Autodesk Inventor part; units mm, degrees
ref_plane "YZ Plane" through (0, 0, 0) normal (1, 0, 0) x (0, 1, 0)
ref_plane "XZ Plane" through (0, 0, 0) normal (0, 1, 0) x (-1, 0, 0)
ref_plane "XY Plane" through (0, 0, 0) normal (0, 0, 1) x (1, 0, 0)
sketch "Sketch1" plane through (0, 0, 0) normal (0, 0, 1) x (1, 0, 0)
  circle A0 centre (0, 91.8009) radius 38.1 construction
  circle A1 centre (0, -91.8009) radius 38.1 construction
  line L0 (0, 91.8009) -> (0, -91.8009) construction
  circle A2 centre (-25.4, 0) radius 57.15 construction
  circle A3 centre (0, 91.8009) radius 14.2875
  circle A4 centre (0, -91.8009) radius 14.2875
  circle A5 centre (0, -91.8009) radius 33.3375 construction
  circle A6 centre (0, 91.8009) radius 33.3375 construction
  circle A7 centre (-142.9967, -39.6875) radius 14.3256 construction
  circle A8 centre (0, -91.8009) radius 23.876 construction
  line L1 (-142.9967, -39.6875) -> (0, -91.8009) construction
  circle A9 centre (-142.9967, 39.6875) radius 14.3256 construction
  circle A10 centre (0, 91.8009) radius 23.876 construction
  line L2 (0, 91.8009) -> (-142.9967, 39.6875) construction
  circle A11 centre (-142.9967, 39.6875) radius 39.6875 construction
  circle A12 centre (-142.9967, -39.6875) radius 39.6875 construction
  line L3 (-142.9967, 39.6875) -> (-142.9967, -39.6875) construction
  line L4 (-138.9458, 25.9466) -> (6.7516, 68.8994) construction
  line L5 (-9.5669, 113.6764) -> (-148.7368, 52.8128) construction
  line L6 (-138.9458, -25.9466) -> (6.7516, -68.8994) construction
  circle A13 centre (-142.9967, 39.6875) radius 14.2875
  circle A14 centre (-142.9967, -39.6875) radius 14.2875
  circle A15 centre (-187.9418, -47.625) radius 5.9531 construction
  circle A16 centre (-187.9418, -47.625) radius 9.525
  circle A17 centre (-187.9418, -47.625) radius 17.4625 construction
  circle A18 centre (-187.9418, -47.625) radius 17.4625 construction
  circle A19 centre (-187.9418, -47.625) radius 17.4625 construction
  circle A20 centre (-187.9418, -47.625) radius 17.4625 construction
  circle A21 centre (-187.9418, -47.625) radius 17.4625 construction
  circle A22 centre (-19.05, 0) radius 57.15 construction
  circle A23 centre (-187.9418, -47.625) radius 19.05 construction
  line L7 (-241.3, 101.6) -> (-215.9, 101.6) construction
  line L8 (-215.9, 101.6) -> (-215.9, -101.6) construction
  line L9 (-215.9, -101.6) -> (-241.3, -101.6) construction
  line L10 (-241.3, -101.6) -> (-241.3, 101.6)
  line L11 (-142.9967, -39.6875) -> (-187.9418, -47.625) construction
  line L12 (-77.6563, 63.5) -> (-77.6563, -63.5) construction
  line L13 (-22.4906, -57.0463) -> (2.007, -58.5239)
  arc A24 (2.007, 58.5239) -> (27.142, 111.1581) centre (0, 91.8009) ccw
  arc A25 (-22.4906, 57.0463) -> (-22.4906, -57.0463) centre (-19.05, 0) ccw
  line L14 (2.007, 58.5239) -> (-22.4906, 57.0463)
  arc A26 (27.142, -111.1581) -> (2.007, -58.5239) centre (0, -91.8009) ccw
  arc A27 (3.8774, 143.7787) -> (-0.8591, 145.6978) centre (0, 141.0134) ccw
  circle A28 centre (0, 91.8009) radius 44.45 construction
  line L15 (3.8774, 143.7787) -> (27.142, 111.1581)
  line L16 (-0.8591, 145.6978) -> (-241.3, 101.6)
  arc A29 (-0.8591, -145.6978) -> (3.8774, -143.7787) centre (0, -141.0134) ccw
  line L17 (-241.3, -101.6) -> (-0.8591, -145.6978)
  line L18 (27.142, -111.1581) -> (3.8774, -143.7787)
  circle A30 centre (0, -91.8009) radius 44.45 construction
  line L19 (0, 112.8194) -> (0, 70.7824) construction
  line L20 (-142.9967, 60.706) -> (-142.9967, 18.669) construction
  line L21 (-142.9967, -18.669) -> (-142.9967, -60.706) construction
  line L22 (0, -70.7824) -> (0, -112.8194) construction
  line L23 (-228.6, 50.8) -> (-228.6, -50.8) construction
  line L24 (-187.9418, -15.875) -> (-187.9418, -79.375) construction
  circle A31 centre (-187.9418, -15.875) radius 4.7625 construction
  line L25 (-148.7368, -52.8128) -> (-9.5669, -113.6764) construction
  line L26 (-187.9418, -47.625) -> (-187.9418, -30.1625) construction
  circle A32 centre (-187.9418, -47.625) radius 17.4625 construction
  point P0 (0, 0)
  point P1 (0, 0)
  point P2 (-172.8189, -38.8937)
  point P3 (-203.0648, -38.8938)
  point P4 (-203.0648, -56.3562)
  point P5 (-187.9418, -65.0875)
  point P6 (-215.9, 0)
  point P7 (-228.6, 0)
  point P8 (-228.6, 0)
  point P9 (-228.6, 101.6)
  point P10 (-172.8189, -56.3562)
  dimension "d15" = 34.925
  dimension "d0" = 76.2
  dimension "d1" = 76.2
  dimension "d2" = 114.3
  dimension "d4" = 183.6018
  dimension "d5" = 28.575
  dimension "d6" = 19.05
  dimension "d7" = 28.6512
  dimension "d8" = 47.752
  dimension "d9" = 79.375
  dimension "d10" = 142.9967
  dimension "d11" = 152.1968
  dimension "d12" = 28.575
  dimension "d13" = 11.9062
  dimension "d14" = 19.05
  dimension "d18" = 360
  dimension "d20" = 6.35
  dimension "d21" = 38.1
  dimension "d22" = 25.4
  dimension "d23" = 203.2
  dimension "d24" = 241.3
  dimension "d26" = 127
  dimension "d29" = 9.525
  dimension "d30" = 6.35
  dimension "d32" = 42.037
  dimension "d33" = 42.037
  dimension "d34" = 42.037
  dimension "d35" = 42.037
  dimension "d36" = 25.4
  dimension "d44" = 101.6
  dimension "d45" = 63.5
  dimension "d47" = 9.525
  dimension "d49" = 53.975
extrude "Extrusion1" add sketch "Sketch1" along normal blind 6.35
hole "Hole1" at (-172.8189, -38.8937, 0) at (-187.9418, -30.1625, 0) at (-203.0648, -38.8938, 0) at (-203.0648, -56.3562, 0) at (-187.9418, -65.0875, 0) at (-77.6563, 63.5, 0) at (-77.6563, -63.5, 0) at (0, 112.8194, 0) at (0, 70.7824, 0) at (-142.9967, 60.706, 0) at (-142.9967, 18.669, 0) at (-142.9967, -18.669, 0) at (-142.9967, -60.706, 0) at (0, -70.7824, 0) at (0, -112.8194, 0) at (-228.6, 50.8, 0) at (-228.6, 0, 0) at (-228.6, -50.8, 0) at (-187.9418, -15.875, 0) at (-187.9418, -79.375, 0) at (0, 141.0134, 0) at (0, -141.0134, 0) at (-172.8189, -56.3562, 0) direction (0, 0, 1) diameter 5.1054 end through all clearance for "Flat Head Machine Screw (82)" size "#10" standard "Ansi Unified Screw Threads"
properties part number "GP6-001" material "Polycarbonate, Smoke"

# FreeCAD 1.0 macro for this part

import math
import FreeCAD as App
import Part
import Sketcher
from FreeCAD import Vector
Q = App.Units.Quantity

doc = App.newDocument("Part")
params = doc.addObject("Spreadsheet::Sheet", "Params")
for row, (alias, value) in enumerate([
    ("sketch1_diameter", "0.75 in"),
    ("sketch1_height", "8 in"),
    ("sketch1_radius", "2.25 in"),
    ("sketch1_diameter2", "1.125 in"),
    ("sketch1_radius2", "0.1875 in"),
    ("pad1_length", "0.25 in"),
    ("sketch2_diameter", "0.201 in"),
    ("hole_diameter", "0.201 in"),
], start=1):
    params.set(f"A{row}", alias)
    params.set(f"B{row}", "=" + value)
    params.setAlias(f"B{row}", alias)

body = doc.addObject("PartDesign::Body", "Body")

sketch1 = doc.addObject("Sketcher::SketchObject", "Sketch")
body.addObject(sketch1)
sketch1.AttachmentSupport = (doc.XY_Plane, [""])
sketch1.MapMode = "FlatFace"
sketch1.addGeometry(Part.LineSegment(Vector(-241.3, 101.6, 0), Vector(-241.3, -101.6, 0)), False)
sketch1.addGeometry(Part.LineSegment(Vector(-241.3, -101.6, 0), Vector(-0.9, -145.7, 0)), False)
sketch1.addGeometry(Part.ArcOfCircle(Part.Circle(Vector(0, -141, 0), Vector(0, 0, 1), 4.8), math.radians(-100), math.radians(-35)), False)
sketch1.addGeometry(Part.LineSegment(Vector(3.9, -143.8, 0), Vector(27.1, -111.2, 0)), False)
sketch1.addGeometry(Part.ArcOfCircle(Part.Circle(Vector(0, -91.8, 0), Vector(0, 0, 1), 33.3), math.radians(-35), math.radians(87)), False)
sketch1.addGeometry(Part.LineSegment(Vector(2, -58.5, 0), Vector(-22.5, -57, 0)), False)
sketch1.addGeometry(Part.ArcOfCircle(Part.Circle(Vector(-19.1, 0, 0), Vector(0, 0, 1), 57.1), math.radians(93), math.radians(267)), False)
sketch1.addGeometry(Part.LineSegment(Vector(-22.5, 57, 0), Vector(2, 58.5, 0)), False)
sketch1.addGeometry(Part.ArcOfCircle(Part.Circle(Vector(0, 91.8, 0), Vector(0, 0, 1), 33.3), math.radians(-87), math.radians(35)), False)
sketch1.addGeometry(Part.LineSegment(Vector(27.1, 111.2, 0), Vector(3.9, 143.8, 0)), False)
sketch1.addGeometry(Part.ArcOfCircle(Part.Circle(Vector(0, 141, 0), Vector(0, 0, 1), 4.8), math.radians(35), math.radians(100)), False)
sketch1.addGeometry(Part.LineSegment(Vector(-0.9, 145.7, 0), Vector(-241.3, 101.6, 0)), False)
sketch1.addGeometry(Part.Circle(Vector(-187.9, -47.6, 0), Vector(0, 0, 1), 9.5), False)
sketch1.addGeometry(Part.Circle(Vector(-143, -39.7, 0), Vector(0, 0, 1), 14.3), False)
sketch1.addGeometry(Part.Circle(Vector(0, -91.8, 0), Vector(0, 0, 1), 14.3), False)
sketch1.addGeometry(Part.Circle(Vector(-143, 39.7, 0), Vector(0, 0, 1), 14.3), False)
sketch1.addGeometry(Part.Circle(Vector(0, 91.8, 0), Vector(0, 0, 1), 14.3), False)
sketch1.addConstraint(Sketcher.Constraint("Coincident", 0, 2, 1, 1))
sketch1.addConstraint(Sketcher.Constraint("Tangent", 1, 2, 2, 1))
sketch1.addConstraint(Sketcher.Constraint("Tangent", 2, 2, 3, 1))
sketch1.addConstraint(Sketcher.Constraint("Tangent", 3, 2, 4, 1))
sketch1.addConstraint(Sketcher.Constraint("Tangent", 4, 2, 5, 1))
sketch1.addConstraint(Sketcher.Constraint("Tangent", 5, 2, 6, 2))
sketch1.addConstraint(Sketcher.Constraint("Tangent", 6, 1, 7, 1))
sketch1.addConstraint(Sketcher.Constraint("Tangent", 7, 2, 8, 1))
sketch1.addConstraint(Sketcher.Constraint("Tangent", 8, 2, 9, 1))
sketch1.addConstraint(Sketcher.Constraint("Tangent", 9, 2, 10, 1))
sketch1.addConstraint(Sketcher.Constraint("Tangent", 10, 2, 11, 1))
sketch1.addConstraint(Sketcher.Constraint("Coincident", 11, 2, 0, 1))
sketch1.addConstraint(Sketcher.Constraint("Vertical", 0))
sketch1.addConstraint(Sketcher.Constraint("Coincident", 14, 3, 4, 3))
sketch1.addConstraint(Sketcher.Constraint("Coincident", 16, 3, 8, 3))
sketch1.addConstraint(Sketcher.Constraint("Equal", 4, 8))
sketch1.addConstraint(Sketcher.Constraint("Equal", 2, 10))
sketch1.addConstraint(Sketcher.Constraint("Equal", 13, 14))
sketch1.addConstraint(Sketcher.Constraint("Equal", 14, 15))
sketch1.addConstraint(Sketcher.Constraint("Equal", 15, 16))
sketch1.addConstraint(Sketcher.Constraint("Symmetric", 4, 3, 8, 3, -1, 1))
sketch1.addConstraint(Sketcher.Constraint("Symmetric", 2, 3, 10, 3, -1, 1))
sketch1.addConstraint(Sketcher.Constraint("Symmetric", 13, 3, 15, 3, -1))
sketch1.addConstraint(Sketcher.Constraint("Symmetric", 5, 2, 6, 1, -1))
sketch1.addConstraint(Sketcher.Constraint("PointOnObject", 2, 3, -2))
sketch1.addConstraint(Sketcher.Constraint("Vertical", 1, 2, 10, 2))
sketch1.addConstraint(Sketcher.Constraint("Diameter", 12, Q("0.75 in")))
sketch1.addConstraint(Sketcher.Constraint("DistanceY", 0, 2, 0, 1, Q("8 in")))
sketch1.addConstraint(Sketcher.Constraint("Radius", 6, Q("2.25 in")))
sketch1.addConstraint(Sketcher.Constraint("Diameter", 13, Q("1.125 in")))
sketch1.addConstraint(Sketcher.Constraint("Radius", 2, Q("0.1875 in")))
sketch1.addConstraint(Sketcher.Constraint("DistanceX", 0, 2, -1, 1, Q("9.5 in")))
sketch1.addConstraint(Sketcher.Constraint("DistanceX", 6, 3, -1, 1, Q("0.75 in")))
sketch1.addConstraint(Sketcher.Constraint("Radius", 4, Q("1.3125 in")))
sketch1.addConstraint(Sketcher.Constraint("DistanceY", 13, 3, 15, 3, Q("3.125 in")))
sketch1.addConstraint(Sketcher.Constraint("DistanceY", 0, 2, 12, 3, Q("2.125 in")))
sketch1.addConstraint(Sketcher.Constraint("DistanceX", 13, 3, -1, 1, Q("5.6298 in")))
sketch1.addConstraint(Sketcher.Constraint("DistanceY", 4, 3, 8, 3, Q("183.6018 mm")))
sketch1.addConstraint(Sketcher.Constraint("DistanceY", 2, 3, 4, 3, Q("1.9375 in")))
sketch1.addConstraint(Sketcher.Constraint("DistanceX", 12, 3, 13, 3, Q("1.7695 in")))
sketch1.setExpression("Constraints[26]", "Params.sketch1_diameter")
sketch1.setExpression("Constraints[27]", "Params.sketch1_height")
sketch1.setExpression("Constraints[28]", "Params.sketch1_radius")
sketch1.setExpression("Constraints[29]", "Params.sketch1_diameter2")
sketch1.setExpression("Constraints[30]", "Params.sketch1_radius2")
pad1 = doc.addObject("PartDesign::Pad", "Pad")
body.addObject(pad1)
pad1.Profile = sketch1
pad1.setExpression("Length", "Params.pad1_length")

sketch2 = doc.addObject("Sketcher::SketchObject", "Sketch001")
body.addObject(sketch2)
sketch2.AttachmentSupport = (doc.XY_Plane, [""])
sketch2.MapMode = "FlatFace"
sketch2.addGeometry(Part.Circle(Vector(-172.8, -38.9, 0), Vector(0, 0, 1), 2.6), False)
sketch2.addGeometry(Part.Circle(Vector(-187.9, -30.2, 0), Vector(0, 0, 1), 2.6), False)
sketch2.addGeometry(Part.Circle(Vector(-203.1, -38.9, 0), Vector(0, 0, 1), 2.6), False)
sketch2.addGeometry(Part.Circle(Vector(-203.1, -56.4, 0), Vector(0, 0, 1), 2.6), False)
sketch2.addGeometry(Part.Circle(Vector(-187.9, -65.1, 0), Vector(0, 0, 1), 2.6), False)
sketch2.addGeometry(Part.Circle(Vector(-77.7, 63.5, 0), Vector(0, 0, 1), 2.6), False)
sketch2.addGeometry(Part.Circle(Vector(-77.7, -63.5, 0), Vector(0, 0, 1), 2.6), False)
sketch2.addGeometry(Part.Circle(Vector(0, 112.8, 0), Vector(0, 0, 1), 2.6), False)
sketch2.addGeometry(Part.Circle(Vector(0, 70.8, 0), Vector(0, 0, 1), 2.6), False)
sketch2.addGeometry(Part.Circle(Vector(-143, 60.7, 0), Vector(0, 0, 1), 2.6), False)
sketch2.addGeometry(Part.Circle(Vector(-143, 18.7, 0), Vector(0, 0, 1), 2.6), False)
sketch2.addGeometry(Part.Circle(Vector(-143, -18.7, 0), Vector(0, 0, 1), 2.6), False)
sketch2.addGeometry(Part.Circle(Vector(-143, -60.7, 0), Vector(0, 0, 1), 2.6), False)
sketch2.addGeometry(Part.Circle(Vector(0, -70.8, 0), Vector(0, 0, 1), 2.6), False)
sketch2.addGeometry(Part.Circle(Vector(0, -112.8, 0), Vector(0, 0, 1), 2.6), False)
sketch2.addGeometry(Part.Circle(Vector(-228.6, 50.8, 0), Vector(0, 0, 1), 2.6), False)
sketch2.addGeometry(Part.Circle(Vector(-228.6, 0, 0), Vector(0, 0, 1), 2.6), False)
sketch2.addGeometry(Part.Circle(Vector(-228.6, -50.8, 0), Vector(0, 0, 1), 2.6), False)
sketch2.addGeometry(Part.Circle(Vector(-187.9, -15.9, 0), Vector(0, 0, 1), 2.6), False)
sketch2.addGeometry(Part.Circle(Vector(-187.9, -79.4, 0), Vector(0, 0, 1), 2.6), False)
sketch2.addGeometry(Part.Circle(Vector(0, 141, 0), Vector(0, 0, 1), 2.6), False)
sketch2.addGeometry(Part.Circle(Vector(0, -141, 0), Vector(0, 0, 1), 2.6), False)
sketch2.addGeometry(Part.Circle(Vector(-172.8, -56.4, 0), Vector(0, 0, 1), 2.6), False)
sketch2.addConstraint(Sketcher.Constraint("Equal", 0, 1))
sketch2.addConstraint(Sketcher.Constraint("Equal", 1, 2))
sketch2.addConstraint(Sketcher.Constraint("Equal", 2, 3))
sketch2.addConstraint(Sketcher.Constraint("Equal", 3, 4))
sketch2.addConstraint(Sketcher.Constraint("Equal", 4, 5))
sketch2.addConstraint(Sketcher.Constraint("Equal", 5, 6))
sketch2.addConstraint(Sketcher.Constraint("Equal", 6, 7))
sketch2.addConstraint(Sketcher.Constraint("Equal", 7, 8))
sketch2.addConstraint(Sketcher.Constraint("Equal", 8, 9))
sketch2.addConstraint(Sketcher.Constraint("Equal", 9, 10))
sketch2.addConstraint(Sketcher.Constraint("Equal", 10, 11))
sketch2.addConstraint(Sketcher.Constraint("Equal", 11, 12))
sketch2.addConstraint(Sketcher.Constraint("Equal", 12, 13))
sketch2.addConstraint(Sketcher.Constraint("Equal", 13, 14))
sketch2.addConstraint(Sketcher.Constraint("Equal", 14, 15))
sketch2.addConstraint(Sketcher.Constraint("Equal", 15, 16))
sketch2.addConstraint(Sketcher.Constraint("Equal", 16, 17))
sketch2.addConstraint(Sketcher.Constraint("Equal", 17, 18))
sketch2.addConstraint(Sketcher.Constraint("Equal", 18, 19))
sketch2.addConstraint(Sketcher.Constraint("Equal", 19, 20))
sketch2.addConstraint(Sketcher.Constraint("Equal", 20, 21))
sketch2.addConstraint(Sketcher.Constraint("Equal", 21, 22))
sketch2.addConstraint(Sketcher.Constraint("Symmetric", 8, 3, 13, 3, -1, 1))
sketch2.addConstraint(Sketcher.Constraint("Symmetric", 7, 3, 14, 3, -1, 1))
sketch2.addConstraint(Sketcher.Constraint("Symmetric", 20, 3, 21, 3, -1, 1))
sketch2.addConstraint(Sketcher.Constraint("Symmetric", 5, 3, 6, 3, -1))
sketch2.addConstraint(Sketcher.Constraint("Symmetric", 10, 3, 11, 3, -1))
sketch2.addConstraint(Sketcher.Constraint("Symmetric", 9, 3, 12, 3, -1))
sketch2.addConstraint(Sketcher.Constraint("Symmetric", 15, 3, 17, 3, -1))
sketch2.addConstraint(Sketcher.Constraint("PointOnObject", 7, 3, -2))
sketch2.addConstraint(Sketcher.Constraint("PointOnObject", 8, 3, -2))
sketch2.addConstraint(Sketcher.Constraint("PointOnObject", 16, 3, -1))
sketch2.addConstraint(Sketcher.Constraint("PointOnObject", 20, 3, -2))
sketch2.addConstraint(Sketcher.Constraint("Horizontal", 0, 3, 2, 3))
sketch2.addConstraint(Sketcher.Constraint("Horizontal", 3, 3, 22, 3))
sketch2.addConstraint(Sketcher.Constraint("Vertical", 2, 3, 3, 3))
sketch2.addConstraint(Sketcher.Constraint("Vertical", 1, 3, 4, 3))
sketch2.addConstraint(Sketcher.Constraint("Vertical", 9, 3, 10, 3))
sketch2.addConstraint(Sketcher.Constraint("Vertical", 15, 3, 16, 3))
sketch2.addConstraint(Sketcher.Constraint("Vertical", 4, 3, 18, 3))
sketch2.addConstraint(Sketcher.Constraint("Vertical", 18, 3, 19, 3))
sketch2.addConstraint(Sketcher.Constraint("Vertical", 0, 3, 22, 3))
sketch2.addConstraint(Sketcher.Constraint("Diameter", 0, Q("0.201 in")))
sketch2.addConstraint(Sketcher.Constraint("DistanceX", 15, 3, -1, 1, Q("9 in")))
sketch2.addConstraint(Sketcher.Constraint("DistanceY", -1, 1, 15, 3, Q("2 in")))
sketch2.addConstraint(Sketcher.Constraint("DistanceY", 6, 3, 5, 3, Q("5 in")))
sketch2.addConstraint(Sketcher.Constraint("DistanceY", -1, 1, 9, 3, Q("2.39 in")))
sketch2.addConstraint(Sketcher.Constraint("DistanceY", 11, 3, 10, 3, Q("1.47 in")))
sketch2.addConstraint(Sketcher.Constraint("DistanceY", 7, 3, 20, 3, Q("1.11 in")))
sketch2.addConstraint(Sketcher.Constraint("DistanceY", 0, 3, -1, 1, Q("1.531248 in")))
sketch2.addConstraint(Sketcher.Constraint("DistanceY", 1, 3, -1, 1, Q("1.1875 in")))
sketch2.addConstraint(Sketcher.Constraint("DistanceY", 3, 3, -1, 1, Q("2.218748 in")))
sketch2.addConstraint(Sketcher.Constraint("DistanceY", 4, 3, -1, 1, Q("2.5625 in")))
sketch2.addConstraint(Sketcher.Constraint("DistanceY", 18, 3, -1, 1, Q("0.625 in")))
sketch2.addConstraint(Sketcher.Constraint("DistanceY", 19, 3, -1, 1, Q("3.125 in")))
sketch2.addConstraint(Sketcher.Constraint("DistanceY", 8, 3, 7, 3, Q("1.655 in")))
sketch2.addConstraint(Sketcher.Constraint("DistanceX", 0, 3, -1, 1, Q("6.8039 in")))
sketch2.addConstraint(Sketcher.Constraint("DistanceY", -1, 1, 7, 3, Q("4.4417 in")))
sketch2.addConstraint(Sketcher.Constraint("DistanceX", 9, 3, -1, 1, Q("5.6298 in")))
sketch2.addConstraint(Sketcher.Constraint("DistanceX", 1, 3, 0, 3, Q("0.5954 in")))
sketch2.addConstraint(Sketcher.Constraint("DistanceX", 2, 3, 1, 3, Q("0.5954 in")))
sketch2.addConstraint(Sketcher.Constraint("DistanceX", 5, 3, -1, 1, Q("77.6563 mm")))
sketch2.setExpression("Constraints[42]", "Params.sketch2_diameter")
doc.recompute()
hole = doc.addObject("PartDesign::Hole", "Hole")
body.addObject(hole)
hole.Profile = sketch2
hole.ThreadType = "None"
hole.setExpression("Diameter", "Params.hole_diameter")
hole.DepthType = "ThroughAll"
hole.Reversed = True

doc.recompute()
